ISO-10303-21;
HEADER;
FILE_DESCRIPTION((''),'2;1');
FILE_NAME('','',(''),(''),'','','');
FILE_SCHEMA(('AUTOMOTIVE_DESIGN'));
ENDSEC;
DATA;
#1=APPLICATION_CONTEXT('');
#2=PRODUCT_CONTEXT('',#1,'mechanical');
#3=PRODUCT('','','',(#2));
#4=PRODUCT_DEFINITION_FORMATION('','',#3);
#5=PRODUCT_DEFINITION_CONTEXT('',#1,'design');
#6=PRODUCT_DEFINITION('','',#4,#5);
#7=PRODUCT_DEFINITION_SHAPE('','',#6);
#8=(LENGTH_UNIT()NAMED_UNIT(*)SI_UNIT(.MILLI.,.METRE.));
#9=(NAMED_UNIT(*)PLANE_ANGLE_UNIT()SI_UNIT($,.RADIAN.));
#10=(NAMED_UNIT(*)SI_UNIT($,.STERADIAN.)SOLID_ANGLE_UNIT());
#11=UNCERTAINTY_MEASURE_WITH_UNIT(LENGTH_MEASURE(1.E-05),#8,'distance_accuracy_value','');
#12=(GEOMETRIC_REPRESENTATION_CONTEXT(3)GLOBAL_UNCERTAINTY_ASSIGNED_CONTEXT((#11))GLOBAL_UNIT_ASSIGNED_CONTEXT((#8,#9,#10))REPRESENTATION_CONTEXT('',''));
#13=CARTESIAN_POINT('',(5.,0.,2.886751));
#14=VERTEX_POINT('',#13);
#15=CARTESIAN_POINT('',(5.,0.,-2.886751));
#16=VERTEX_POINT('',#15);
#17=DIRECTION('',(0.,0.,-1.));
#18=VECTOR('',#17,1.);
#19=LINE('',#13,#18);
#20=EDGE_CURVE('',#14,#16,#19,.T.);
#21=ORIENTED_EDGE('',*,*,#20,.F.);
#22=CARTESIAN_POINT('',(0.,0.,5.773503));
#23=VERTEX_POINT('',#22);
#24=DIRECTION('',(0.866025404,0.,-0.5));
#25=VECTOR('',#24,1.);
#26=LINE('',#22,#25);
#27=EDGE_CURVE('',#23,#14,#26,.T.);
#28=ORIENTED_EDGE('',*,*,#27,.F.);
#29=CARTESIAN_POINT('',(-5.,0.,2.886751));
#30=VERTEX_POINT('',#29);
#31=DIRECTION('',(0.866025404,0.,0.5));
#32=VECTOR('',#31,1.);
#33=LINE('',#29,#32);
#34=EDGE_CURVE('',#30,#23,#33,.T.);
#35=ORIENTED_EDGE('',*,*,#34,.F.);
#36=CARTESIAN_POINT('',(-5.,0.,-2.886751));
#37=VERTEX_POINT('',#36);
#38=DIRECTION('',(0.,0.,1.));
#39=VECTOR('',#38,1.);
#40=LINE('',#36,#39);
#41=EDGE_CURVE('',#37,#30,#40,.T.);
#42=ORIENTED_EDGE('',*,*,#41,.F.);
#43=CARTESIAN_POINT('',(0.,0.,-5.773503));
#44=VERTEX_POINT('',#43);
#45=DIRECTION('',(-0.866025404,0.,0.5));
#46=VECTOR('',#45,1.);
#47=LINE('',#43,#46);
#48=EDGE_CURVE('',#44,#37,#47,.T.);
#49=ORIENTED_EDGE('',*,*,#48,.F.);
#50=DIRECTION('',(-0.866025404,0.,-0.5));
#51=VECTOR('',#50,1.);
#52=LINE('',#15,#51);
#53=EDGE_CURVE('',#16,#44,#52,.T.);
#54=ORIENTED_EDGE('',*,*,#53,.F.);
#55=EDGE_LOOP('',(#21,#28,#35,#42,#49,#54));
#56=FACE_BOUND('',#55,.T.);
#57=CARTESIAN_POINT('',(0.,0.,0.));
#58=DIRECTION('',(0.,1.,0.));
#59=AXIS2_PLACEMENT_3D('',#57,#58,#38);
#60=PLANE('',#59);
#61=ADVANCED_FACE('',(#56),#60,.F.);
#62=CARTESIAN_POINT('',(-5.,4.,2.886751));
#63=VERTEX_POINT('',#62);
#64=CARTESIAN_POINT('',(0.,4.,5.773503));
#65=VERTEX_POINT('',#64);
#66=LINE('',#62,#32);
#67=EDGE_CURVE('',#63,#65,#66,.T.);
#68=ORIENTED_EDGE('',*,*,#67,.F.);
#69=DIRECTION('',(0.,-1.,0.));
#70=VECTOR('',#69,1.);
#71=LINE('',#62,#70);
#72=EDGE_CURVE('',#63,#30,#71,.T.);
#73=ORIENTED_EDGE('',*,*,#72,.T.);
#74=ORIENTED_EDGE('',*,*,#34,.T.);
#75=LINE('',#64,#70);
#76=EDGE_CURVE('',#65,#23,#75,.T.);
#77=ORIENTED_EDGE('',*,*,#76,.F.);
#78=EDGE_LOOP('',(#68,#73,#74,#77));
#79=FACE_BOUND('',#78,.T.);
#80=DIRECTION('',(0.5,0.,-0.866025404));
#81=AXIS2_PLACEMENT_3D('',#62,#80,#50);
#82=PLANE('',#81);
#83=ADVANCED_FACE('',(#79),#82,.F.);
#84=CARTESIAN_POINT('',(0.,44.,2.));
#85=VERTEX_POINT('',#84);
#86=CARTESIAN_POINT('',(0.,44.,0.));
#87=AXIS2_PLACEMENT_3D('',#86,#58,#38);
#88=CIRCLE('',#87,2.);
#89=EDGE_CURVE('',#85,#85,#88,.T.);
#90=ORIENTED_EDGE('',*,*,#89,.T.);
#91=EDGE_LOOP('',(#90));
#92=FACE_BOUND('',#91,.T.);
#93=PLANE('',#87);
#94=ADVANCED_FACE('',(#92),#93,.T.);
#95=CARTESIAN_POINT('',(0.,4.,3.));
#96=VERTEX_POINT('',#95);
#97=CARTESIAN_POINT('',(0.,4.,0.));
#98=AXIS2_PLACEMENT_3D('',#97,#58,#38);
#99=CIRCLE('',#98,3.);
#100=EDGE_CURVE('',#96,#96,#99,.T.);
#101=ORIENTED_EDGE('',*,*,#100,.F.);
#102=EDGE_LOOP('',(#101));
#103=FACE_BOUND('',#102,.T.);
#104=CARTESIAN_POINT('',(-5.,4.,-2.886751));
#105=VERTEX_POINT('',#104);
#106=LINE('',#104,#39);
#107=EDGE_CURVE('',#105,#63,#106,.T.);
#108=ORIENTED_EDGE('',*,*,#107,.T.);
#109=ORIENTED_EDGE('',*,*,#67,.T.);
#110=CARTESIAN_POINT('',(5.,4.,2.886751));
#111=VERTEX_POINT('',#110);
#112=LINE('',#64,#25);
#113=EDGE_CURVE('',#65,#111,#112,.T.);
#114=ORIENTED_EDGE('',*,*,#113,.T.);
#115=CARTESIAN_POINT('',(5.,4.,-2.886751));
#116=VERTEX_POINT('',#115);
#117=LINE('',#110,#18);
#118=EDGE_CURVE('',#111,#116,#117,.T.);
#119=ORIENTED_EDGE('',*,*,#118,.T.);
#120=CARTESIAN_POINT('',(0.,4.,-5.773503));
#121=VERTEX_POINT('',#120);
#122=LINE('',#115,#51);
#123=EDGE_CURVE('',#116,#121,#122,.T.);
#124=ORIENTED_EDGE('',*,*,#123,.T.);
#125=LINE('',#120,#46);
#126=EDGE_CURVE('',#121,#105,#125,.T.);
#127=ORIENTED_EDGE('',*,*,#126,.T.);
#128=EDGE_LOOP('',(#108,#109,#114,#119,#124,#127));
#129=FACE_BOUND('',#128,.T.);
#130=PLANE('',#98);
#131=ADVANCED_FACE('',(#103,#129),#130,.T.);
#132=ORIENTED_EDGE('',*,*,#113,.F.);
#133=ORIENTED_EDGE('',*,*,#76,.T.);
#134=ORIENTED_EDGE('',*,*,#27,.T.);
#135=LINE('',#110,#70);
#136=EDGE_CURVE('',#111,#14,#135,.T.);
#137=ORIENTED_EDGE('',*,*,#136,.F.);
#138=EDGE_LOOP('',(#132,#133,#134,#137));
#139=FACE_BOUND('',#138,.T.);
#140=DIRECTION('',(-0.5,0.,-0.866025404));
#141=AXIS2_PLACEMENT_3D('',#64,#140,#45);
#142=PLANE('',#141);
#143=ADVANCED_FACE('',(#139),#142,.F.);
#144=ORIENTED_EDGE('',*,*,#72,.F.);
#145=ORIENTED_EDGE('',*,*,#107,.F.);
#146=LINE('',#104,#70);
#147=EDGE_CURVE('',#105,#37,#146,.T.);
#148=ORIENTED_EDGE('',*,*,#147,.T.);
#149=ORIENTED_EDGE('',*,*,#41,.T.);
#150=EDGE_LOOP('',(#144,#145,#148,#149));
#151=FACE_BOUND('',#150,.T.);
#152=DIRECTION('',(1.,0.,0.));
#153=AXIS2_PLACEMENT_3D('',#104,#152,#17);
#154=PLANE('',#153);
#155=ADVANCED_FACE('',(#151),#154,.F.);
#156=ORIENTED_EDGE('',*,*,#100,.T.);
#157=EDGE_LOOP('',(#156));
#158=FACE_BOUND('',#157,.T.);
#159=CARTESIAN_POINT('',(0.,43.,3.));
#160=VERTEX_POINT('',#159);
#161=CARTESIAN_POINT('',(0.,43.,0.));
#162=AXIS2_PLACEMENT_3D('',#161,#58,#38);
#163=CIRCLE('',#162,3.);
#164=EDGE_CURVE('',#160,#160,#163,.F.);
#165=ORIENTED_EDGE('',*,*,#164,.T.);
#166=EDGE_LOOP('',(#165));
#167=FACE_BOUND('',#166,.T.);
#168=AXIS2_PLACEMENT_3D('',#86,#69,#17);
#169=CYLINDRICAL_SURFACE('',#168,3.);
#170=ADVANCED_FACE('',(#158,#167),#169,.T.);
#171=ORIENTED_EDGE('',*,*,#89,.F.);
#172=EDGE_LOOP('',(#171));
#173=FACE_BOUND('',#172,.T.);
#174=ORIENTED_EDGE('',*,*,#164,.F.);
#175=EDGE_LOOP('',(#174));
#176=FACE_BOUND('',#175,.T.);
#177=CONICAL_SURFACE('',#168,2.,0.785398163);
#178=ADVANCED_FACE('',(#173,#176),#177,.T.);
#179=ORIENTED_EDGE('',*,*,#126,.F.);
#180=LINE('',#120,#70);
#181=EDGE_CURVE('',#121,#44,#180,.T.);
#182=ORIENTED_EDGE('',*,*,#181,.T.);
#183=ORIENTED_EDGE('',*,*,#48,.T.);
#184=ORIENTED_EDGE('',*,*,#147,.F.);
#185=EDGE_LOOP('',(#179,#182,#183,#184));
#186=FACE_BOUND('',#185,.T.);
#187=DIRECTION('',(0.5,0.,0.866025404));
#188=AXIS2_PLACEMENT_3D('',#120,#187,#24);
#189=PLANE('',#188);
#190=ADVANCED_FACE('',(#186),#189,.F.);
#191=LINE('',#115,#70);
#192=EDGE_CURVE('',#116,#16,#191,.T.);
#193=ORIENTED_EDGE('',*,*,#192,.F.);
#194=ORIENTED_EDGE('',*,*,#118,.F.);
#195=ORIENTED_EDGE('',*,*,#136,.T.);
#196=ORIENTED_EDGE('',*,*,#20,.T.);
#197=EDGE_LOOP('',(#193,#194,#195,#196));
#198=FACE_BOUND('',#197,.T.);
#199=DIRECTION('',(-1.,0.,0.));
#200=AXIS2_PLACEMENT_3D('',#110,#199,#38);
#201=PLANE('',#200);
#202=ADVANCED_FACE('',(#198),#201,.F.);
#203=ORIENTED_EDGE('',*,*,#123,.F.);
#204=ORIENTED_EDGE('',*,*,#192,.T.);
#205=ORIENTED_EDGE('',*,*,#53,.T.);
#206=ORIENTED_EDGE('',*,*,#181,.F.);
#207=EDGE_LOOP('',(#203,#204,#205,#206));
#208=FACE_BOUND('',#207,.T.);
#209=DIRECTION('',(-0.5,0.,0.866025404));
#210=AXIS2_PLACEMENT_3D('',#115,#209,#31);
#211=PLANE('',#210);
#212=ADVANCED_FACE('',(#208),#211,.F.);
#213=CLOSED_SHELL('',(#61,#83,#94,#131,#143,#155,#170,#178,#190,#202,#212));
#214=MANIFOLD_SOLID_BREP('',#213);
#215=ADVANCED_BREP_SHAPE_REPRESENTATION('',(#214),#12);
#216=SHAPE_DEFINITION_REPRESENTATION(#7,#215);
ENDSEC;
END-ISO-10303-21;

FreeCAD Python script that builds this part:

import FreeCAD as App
import Part
import Sketcher
from FreeCAD import Vector
Q = App.Units.Quantity


def edges_at(feature, points):
    """Names of the edges that pass closest to the given points."""
    edges = feature.Shape.Edges
    near = lambda p: min(range(len(edges)), key=lambda i: edges[i].distToShape(Part.Vertex(*p))[0])
    return sorted({f"Edge{near(p) + 1}" for p in points})


def add_polygon(sketch, points):
    """Adds a closed chain of lines whose ends are joined by coincident constraints."""
    first, n = sketch.GeometryCount, len(points)
    for a, b in zip(points, points[1:] + points[:1]):
        sketch.addGeometry(Part.LineSegment(App.Vector(*a, 0), App.Vector(*b, 0)), False)
    for i in range(n):
        sketch.addConstraint(Sketcher.Constraint("Coincident", first + i, 2, first + (i + 1) % n, 1))

doc = App.newDocument("Part")
body = doc.addObject("PartDesign::Body", "Body")

# Sketch on XZ plane
sketch1 = body.newObject("Sketcher::SketchObject", "Sketch")
sketch1.AttachmentSupport = (doc.getObject("XZ_Plane"), [""])
sketch1.MapMode = "FlatFace"
add_polygon(sketch1, [(0, -6), (-5, -3), (-5, 3), (0, 6), (5, 3), (5, -3)])  # lines 0-5
sketch1.addConstraint(Sketcher.Constraint("Vertical", 1))
sketch1.addConstraint(Sketcher.Constraint("Vertical", 4))
sketch1.addConstraint(Sketcher.Constraint("Symmetric", 0, 2, 3, 2, -1, 1))
sketch1.addConstraint(Sketcher.Constraint("Symmetric", 2, 2, 5, 2, -1, 1))
sketch1.addConstraint(Sketcher.Constraint("PointOnObject", 2, 2, -2))
sketch1.addConstraint(Sketcher.Constraint("Parallel", 2, 5))
sketch1.addConstraint(Sketcher.Constraint("Horizontal", 1, 2, 3, 2))
sketch1.addConstraint(Sketcher.Constraint("Angle", 0, Q("150 deg")))
sketch1.addConstraint(Sketcher.Constraint("DistanceX", 0, 2, -1, 1, Q("5 mm")))
sketch1.addConstraint(Sketcher.Constraint("DistanceY", 1, 1, 1, 2, Q("5.773503 mm")))
pad1 = body.newObject("PartDesign::Pad", "Pad")
pad1.Profile = sketch1
pad1.Length = 4
pad1.Reversed = True

# Sketch on XZ plane
sketch2 = body.newObject("Sketcher::SketchObject", "Sketch001")
sketch2.AttachmentSupport = (doc.getObject("XZ_Plane"), [""])
sketch2.MapMode = "FlatFace"
sketch2.AttachmentOffset = App.Placement(Vector(0, 0, -4), App.Rotation())
sketch2.addGeometry(Part.Circle(Vector(0, 0, 0), Vector(0, 0, 1), 3), False)
sketch2.addConstraint(Sketcher.Constraint("Coincident", 0, 3, -1, 1))
sketch2.addConstraint(Sketcher.Constraint("Diameter", 0, Q("6 mm")))
pad2 = body.newObject("PartDesign::Pad", "Pad001")
pad2.Profile = sketch2
pad2.Length = 40
pad2.Reversed = True
doc.recompute()

chamfer = body.newObject("PartDesign::Chamfer", "Chamfer")
chamfer.Base = (pad2, edges_at(pad2, [(0, 44, -3)]))
chamfer.Size = 1

doc.recompute()
